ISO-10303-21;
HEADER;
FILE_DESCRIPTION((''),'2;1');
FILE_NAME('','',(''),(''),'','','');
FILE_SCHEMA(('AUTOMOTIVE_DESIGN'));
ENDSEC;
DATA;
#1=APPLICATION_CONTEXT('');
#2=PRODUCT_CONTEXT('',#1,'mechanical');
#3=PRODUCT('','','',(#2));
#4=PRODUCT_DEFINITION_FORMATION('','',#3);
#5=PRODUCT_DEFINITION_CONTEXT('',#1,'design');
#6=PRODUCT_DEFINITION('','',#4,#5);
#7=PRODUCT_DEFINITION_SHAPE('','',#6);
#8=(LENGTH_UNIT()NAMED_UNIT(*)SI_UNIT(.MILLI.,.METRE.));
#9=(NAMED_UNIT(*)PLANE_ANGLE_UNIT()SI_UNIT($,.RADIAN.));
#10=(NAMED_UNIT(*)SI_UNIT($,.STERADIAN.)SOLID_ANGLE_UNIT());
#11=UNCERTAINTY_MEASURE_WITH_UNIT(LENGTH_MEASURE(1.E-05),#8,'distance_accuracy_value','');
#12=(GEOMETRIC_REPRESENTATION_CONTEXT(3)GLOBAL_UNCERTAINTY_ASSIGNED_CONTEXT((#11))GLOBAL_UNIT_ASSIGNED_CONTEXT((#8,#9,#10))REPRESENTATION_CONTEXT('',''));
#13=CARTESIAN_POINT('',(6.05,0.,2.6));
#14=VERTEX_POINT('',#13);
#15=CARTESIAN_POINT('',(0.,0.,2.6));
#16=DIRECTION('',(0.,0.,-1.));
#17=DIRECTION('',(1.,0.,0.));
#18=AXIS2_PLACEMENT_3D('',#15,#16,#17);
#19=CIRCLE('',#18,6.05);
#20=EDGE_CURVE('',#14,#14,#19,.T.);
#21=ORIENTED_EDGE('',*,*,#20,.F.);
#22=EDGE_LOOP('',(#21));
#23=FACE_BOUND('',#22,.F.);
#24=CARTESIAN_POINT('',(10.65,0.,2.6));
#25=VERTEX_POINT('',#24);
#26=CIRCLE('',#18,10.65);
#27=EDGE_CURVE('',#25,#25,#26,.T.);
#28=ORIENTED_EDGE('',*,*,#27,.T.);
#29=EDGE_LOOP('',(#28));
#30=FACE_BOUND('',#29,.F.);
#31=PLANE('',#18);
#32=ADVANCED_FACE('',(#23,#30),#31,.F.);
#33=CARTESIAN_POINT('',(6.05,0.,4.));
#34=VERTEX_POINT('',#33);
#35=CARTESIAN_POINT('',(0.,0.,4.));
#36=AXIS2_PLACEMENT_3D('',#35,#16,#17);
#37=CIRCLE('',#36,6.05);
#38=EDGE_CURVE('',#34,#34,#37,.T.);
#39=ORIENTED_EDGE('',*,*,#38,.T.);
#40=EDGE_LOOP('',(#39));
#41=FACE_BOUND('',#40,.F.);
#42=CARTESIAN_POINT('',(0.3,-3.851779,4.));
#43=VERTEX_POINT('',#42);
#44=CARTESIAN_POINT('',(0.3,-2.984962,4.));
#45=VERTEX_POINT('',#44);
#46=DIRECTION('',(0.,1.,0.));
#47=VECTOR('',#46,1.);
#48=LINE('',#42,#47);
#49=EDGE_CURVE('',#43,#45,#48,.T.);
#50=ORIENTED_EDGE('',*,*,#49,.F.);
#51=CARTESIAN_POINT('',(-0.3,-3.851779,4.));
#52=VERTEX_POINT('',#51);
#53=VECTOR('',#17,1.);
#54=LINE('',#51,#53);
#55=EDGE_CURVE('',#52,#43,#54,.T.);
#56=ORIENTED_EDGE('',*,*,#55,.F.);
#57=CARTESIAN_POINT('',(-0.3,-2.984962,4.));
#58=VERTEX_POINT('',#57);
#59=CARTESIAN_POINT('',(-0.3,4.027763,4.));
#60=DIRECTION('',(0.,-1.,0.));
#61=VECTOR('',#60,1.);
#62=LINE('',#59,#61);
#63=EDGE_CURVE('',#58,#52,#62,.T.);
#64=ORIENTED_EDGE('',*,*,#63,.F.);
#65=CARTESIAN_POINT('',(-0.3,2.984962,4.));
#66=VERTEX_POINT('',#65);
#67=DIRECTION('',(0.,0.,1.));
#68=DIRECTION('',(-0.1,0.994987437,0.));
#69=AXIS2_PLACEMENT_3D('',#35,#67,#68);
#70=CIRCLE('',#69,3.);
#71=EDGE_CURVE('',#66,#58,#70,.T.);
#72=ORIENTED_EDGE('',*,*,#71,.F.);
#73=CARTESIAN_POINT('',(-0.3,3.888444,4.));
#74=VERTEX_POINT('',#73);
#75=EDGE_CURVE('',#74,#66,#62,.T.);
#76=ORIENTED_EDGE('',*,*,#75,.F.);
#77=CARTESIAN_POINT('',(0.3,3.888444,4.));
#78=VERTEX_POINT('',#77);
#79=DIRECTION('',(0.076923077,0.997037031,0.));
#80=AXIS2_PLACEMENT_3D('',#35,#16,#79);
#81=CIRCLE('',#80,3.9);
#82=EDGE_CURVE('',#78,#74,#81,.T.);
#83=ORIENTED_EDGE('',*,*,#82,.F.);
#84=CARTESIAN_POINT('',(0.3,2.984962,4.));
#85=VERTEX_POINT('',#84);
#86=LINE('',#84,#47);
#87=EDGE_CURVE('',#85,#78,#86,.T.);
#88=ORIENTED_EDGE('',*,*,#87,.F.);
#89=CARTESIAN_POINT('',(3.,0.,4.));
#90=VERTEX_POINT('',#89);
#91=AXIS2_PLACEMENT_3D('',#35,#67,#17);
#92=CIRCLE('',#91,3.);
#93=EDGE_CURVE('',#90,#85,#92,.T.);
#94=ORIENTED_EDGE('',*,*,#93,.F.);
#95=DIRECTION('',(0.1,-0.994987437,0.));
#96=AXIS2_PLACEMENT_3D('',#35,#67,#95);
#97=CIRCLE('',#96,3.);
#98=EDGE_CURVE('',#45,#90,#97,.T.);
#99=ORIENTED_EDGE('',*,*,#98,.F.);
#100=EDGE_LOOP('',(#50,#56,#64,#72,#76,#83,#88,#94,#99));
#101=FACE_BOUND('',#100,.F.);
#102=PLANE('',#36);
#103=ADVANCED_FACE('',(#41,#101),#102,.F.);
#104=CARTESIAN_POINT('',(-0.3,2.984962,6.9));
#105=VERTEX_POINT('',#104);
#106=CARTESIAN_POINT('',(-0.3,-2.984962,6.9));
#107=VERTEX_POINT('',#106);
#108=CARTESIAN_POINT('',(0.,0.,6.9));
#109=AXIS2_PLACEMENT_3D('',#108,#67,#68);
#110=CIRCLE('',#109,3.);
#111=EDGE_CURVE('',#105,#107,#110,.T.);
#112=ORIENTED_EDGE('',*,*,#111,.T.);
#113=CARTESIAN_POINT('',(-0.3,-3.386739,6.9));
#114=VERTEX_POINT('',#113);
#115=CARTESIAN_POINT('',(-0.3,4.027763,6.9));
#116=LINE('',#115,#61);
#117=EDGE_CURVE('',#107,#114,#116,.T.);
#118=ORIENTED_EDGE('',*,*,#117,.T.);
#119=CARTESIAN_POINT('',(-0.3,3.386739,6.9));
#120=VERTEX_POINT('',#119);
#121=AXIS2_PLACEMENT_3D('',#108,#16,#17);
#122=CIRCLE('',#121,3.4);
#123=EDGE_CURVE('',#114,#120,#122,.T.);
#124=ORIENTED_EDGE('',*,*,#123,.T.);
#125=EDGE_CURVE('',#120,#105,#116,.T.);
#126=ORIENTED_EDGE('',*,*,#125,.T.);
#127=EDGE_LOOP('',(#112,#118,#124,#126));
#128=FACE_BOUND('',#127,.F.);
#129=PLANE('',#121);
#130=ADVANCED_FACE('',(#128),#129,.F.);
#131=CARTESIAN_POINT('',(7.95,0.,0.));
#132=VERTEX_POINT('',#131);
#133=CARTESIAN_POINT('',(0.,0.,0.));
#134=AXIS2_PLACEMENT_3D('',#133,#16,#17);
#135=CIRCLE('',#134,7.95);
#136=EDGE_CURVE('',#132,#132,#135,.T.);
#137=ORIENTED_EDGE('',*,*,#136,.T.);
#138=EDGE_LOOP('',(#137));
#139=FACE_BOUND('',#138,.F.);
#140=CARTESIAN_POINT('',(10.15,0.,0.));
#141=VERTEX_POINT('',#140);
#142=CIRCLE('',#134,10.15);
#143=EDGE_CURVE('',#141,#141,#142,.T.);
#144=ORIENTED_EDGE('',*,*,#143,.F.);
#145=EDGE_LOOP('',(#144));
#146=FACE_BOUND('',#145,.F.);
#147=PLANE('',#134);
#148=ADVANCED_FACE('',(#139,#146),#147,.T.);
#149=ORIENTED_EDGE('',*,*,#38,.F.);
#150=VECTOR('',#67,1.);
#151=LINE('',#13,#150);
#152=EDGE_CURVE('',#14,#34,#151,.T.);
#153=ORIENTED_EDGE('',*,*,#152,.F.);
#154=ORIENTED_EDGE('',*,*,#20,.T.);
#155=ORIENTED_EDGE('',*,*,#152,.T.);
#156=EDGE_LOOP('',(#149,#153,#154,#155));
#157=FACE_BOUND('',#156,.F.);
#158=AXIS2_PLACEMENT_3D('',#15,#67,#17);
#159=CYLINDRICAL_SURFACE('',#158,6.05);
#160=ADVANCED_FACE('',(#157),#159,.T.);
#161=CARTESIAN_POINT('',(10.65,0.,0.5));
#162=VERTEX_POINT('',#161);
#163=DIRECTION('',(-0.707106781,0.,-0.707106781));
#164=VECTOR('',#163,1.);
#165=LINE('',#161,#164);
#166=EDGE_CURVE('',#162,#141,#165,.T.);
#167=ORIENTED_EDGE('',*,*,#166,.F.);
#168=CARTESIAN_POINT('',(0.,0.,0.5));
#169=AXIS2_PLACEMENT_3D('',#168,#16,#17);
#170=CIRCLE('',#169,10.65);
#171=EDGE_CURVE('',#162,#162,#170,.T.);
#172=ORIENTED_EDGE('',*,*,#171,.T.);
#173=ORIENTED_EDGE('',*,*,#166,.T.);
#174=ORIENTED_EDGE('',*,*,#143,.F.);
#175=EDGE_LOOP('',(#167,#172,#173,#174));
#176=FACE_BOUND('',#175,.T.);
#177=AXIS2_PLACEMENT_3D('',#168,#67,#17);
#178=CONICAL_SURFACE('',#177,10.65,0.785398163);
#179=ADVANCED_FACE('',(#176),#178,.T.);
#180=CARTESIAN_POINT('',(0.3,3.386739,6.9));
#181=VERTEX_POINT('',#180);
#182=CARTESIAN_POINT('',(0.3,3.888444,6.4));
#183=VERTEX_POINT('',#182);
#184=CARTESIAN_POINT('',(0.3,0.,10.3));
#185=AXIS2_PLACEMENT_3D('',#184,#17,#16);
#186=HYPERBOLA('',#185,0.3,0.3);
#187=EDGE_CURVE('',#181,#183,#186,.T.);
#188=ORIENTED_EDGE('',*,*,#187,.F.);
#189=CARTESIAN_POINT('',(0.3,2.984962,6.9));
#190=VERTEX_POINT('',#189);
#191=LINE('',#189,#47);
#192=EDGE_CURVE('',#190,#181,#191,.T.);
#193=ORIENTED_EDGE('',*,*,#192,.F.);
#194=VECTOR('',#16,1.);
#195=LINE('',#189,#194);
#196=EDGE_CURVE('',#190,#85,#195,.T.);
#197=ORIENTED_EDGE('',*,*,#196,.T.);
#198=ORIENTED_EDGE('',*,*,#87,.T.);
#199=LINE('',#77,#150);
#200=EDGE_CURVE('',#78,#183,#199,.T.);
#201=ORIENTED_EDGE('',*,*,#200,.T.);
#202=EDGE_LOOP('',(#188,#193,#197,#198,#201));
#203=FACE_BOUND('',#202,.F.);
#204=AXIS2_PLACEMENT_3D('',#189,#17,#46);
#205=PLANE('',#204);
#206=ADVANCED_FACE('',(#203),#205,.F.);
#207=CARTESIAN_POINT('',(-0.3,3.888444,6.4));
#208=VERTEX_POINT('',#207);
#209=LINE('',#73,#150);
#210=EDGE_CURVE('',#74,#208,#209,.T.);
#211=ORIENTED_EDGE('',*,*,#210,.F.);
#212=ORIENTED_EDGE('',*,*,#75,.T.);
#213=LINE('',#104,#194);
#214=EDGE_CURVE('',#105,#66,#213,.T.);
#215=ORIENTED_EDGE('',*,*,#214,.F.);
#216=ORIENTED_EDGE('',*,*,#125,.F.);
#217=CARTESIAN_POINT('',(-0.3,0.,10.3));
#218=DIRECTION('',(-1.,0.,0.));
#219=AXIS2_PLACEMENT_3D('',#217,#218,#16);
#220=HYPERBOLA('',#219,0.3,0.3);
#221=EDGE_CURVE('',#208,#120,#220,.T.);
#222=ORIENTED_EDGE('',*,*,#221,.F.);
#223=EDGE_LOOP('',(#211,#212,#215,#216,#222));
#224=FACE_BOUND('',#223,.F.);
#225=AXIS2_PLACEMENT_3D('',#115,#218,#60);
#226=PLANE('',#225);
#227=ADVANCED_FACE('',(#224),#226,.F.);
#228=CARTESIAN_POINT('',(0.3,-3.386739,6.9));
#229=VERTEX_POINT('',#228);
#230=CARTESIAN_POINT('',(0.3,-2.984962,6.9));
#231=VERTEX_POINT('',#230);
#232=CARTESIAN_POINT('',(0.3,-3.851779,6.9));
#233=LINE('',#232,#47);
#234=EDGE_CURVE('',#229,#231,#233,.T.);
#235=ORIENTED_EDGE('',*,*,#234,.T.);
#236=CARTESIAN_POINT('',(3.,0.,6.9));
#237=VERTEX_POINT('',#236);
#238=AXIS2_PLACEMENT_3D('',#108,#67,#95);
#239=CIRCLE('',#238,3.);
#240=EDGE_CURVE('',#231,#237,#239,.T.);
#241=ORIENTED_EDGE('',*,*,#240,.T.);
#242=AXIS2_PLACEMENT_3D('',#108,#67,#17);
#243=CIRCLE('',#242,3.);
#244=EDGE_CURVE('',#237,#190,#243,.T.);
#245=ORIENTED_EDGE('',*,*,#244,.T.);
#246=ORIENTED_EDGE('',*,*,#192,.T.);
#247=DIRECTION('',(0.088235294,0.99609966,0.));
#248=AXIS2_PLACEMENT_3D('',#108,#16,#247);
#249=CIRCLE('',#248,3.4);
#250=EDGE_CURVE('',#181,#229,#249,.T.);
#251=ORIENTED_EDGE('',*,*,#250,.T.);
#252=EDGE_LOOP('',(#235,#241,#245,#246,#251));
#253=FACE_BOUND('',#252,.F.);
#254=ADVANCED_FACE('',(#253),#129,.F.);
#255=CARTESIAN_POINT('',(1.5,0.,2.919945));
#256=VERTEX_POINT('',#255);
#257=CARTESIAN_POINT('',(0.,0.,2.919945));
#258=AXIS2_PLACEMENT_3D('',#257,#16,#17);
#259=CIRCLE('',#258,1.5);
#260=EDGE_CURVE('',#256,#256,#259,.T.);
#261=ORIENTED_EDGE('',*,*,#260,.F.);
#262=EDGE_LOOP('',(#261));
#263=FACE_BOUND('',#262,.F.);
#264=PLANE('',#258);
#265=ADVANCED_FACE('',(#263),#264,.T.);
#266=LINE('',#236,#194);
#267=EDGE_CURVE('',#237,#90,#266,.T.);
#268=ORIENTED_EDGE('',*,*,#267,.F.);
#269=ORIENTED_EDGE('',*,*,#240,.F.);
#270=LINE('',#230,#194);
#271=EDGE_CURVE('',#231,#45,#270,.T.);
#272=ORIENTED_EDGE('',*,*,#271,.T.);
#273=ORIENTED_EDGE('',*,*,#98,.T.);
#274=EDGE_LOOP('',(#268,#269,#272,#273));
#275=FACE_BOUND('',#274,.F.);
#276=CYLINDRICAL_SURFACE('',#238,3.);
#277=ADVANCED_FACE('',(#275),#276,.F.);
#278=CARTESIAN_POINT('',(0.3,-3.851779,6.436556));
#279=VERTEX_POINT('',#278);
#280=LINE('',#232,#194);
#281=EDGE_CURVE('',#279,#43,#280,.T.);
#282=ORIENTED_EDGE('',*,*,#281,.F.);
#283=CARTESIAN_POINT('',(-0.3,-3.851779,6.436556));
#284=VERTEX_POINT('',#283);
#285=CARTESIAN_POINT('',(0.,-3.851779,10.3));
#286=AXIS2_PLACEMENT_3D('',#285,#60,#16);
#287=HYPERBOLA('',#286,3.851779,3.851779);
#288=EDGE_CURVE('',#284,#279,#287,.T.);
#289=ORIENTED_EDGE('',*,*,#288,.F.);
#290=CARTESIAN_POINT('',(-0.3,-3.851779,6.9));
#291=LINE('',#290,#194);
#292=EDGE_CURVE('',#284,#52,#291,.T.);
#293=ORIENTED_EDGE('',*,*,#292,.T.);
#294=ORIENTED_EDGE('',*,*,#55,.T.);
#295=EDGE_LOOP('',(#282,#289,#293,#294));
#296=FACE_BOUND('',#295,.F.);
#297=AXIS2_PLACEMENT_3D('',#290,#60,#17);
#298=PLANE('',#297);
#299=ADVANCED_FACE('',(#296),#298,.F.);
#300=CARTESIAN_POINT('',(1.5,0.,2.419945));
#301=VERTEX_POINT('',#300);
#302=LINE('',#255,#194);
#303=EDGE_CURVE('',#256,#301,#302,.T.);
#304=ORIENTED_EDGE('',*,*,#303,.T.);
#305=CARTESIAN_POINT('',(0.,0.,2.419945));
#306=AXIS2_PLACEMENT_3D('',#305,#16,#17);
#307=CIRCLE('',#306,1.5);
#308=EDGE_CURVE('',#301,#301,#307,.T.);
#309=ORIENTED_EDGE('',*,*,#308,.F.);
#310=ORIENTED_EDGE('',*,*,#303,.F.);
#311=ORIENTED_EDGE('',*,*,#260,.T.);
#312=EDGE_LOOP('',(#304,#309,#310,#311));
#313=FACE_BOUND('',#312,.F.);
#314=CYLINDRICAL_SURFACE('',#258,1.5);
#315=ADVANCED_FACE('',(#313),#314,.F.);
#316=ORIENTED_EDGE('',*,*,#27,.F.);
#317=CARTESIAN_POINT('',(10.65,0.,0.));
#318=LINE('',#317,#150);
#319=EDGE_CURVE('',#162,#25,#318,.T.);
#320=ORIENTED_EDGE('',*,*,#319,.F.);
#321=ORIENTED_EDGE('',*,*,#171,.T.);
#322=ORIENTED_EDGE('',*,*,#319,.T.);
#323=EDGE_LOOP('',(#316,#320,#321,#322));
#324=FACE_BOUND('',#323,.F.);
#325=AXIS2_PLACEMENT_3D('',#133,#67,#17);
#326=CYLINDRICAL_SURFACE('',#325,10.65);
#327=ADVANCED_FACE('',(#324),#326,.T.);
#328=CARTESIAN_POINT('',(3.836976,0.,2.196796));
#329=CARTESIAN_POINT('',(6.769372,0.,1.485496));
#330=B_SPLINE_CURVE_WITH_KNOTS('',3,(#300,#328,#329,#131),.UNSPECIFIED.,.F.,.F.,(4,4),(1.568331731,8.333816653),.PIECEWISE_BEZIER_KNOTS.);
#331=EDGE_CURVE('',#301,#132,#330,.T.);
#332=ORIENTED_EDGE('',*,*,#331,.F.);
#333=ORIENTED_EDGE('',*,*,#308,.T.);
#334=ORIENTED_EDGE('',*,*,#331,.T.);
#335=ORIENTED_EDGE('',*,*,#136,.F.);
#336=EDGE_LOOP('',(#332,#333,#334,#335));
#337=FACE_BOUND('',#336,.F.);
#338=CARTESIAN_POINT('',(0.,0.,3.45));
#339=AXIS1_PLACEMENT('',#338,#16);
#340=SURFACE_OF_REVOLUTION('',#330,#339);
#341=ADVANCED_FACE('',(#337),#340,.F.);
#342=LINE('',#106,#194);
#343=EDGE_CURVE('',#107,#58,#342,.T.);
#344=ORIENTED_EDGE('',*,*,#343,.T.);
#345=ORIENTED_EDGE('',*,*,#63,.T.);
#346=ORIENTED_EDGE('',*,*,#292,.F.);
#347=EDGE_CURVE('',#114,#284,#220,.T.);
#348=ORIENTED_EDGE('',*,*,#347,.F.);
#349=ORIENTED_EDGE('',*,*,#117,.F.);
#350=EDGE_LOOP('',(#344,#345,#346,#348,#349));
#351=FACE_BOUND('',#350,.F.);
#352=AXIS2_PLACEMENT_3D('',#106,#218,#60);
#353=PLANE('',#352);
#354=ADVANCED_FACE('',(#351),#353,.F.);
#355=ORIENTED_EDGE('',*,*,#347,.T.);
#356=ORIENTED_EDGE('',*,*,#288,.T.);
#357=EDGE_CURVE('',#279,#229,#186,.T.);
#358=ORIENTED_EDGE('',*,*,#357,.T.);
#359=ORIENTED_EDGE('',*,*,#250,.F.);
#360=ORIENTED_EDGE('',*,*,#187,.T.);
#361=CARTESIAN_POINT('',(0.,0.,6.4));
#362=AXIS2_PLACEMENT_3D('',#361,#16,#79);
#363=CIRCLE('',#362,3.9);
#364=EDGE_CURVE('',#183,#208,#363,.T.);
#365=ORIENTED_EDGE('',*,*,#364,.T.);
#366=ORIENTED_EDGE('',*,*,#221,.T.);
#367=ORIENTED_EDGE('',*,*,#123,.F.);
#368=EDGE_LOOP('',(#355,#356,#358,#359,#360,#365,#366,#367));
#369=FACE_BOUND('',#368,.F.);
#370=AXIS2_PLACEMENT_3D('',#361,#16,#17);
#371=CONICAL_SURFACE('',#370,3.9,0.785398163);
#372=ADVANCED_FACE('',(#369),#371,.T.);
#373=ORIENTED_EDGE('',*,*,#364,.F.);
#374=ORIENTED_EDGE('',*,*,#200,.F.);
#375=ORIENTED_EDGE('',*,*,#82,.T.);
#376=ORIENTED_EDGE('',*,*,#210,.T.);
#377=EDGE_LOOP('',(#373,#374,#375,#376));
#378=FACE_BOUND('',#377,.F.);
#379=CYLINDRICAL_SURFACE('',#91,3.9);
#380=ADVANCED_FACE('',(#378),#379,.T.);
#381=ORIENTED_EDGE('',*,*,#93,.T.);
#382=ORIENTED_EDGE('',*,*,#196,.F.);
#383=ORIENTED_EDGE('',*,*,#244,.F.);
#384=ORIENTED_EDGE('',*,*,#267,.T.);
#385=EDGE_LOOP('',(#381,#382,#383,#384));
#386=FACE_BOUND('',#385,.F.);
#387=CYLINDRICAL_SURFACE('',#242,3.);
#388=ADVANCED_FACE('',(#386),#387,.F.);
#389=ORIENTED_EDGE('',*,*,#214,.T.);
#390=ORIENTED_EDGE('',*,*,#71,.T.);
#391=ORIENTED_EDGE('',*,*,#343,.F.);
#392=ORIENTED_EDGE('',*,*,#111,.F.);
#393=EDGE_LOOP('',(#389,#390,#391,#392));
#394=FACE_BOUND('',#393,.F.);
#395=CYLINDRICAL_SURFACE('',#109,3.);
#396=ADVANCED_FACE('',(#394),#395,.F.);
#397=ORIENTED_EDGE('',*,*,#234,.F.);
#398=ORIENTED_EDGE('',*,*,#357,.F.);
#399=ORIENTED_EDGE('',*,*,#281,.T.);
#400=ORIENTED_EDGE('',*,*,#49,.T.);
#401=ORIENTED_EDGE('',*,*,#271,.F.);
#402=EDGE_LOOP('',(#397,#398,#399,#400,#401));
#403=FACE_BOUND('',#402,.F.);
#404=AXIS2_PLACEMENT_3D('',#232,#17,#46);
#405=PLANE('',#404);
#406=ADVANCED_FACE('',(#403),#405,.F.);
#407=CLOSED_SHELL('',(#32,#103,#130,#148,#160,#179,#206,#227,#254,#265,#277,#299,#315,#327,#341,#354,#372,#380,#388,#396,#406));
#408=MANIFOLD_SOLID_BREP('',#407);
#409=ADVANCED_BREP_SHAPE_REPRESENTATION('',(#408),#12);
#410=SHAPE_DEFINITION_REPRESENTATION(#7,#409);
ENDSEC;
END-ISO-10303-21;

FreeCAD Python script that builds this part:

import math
import FreeCAD as App
import Part
import Sketcher
from FreeCAD import Vector


def edges_at(feature, points):
    """Names of the edges that pass closest to the given points."""
    edges = feature.Shape.Edges
    near = lambda p: min(range(len(edges)), key=lambda i: edges[i].distToShape(Part.Vertex(*p))[0])
    return sorted({f"Edge{near(p) + 1}" for p in points})

doc = App.newDocument("Part")
body = doc.addObject("PartDesign::Body", "Body")

sketch1 = doc.addObject("Sketcher::SketchObject", "Sketch")
body.addObject(sketch1)
sketch1.AttachmentSupport = (doc.XZ_Plane, [""])
sketch1.MapMode = "FlatFace"
sketch1.addGeometry([
    Part.BSplineCurve([Vector(1.5, 2.419945, 0), Vector(3.836976, 2.196796, 0), Vector(6.769372, 1.485496, 0), Vector(7.95, 0, 0)], [4, 4], [1.568331731, 8.333816653], False, 3, [1, 1, 1, 1], False),
    Part.LineSegment(Vector(7.95, 0, 0), Vector(10.65, 0, 0)),
    Part.LineSegment(Vector(10.65, 0, 0), Vector(10.65, 2.6, 0)),
    Part.LineSegment(Vector(10.65, 2.6, 0), Vector(6.05, 2.6, 0)),
    Part.LineSegment(Vector(6.05, 2.6, 0), Vector(6.05, 4, 0)),
    Part.LineSegment(Vector(6.05, 4, 0), Vector(3.9, 4, 0)),
    Part.LineSegment(Vector(3.9, 4, 0), Vector(3.9, 6.9, 0)),
    Part.LineSegment(Vector(3.9, 6.9, 0), Vector(0, 6.9, 0)),
    Part.LineSegment(Vector(0, 6.9, 0), Vector(0, 2.919945, 0)),
    Part.LineSegment(Vector(0, 2.919945, 0), Vector(1.5, 2.919945, 0)),
    Part.LineSegment(Vector(1.5, 2.919945, 0), Vector(1.5, 2.419945, 0)),
], False)
sketch1.addConstraint([
    Sketcher.Constraint("Block", 0),
    Sketcher.Constraint("Coincident", 0, 2, 1, 1),
    Sketcher.Constraint("Coincident", 1, 2, 2, 1),
    Sketcher.Constraint("Coincident", 2, 2, 3, 1),
    Sketcher.Constraint("Coincident", 3, 2, 4, 1),
    Sketcher.Constraint("Coincident", 4, 2, 5, 1),
    Sketcher.Constraint("Coincident", 5, 2, 6, 1),
    Sketcher.Constraint("Coincident", 6, 2, 7, 1),
    Sketcher.Constraint("Coincident", 7, 2, 8, 1),
    Sketcher.Constraint("Coincident", 8, 2, 9, 1),
    Sketcher.Constraint("Coincident", 9, 2, 10, 1),
    Sketcher.Constraint("Coincident", 10, 2, 0, 1),
    Sketcher.Constraint("Horizontal", 1),
    Sketcher.Constraint("Vertical", 2),
    Sketcher.Constraint("Horizontal", 3),
    Sketcher.Constraint("Vertical", 4),
    Sketcher.Constraint("Horizontal", 5),
    Sketcher.Constraint("Vertical", 6),
    Sketcher.Constraint("Horizontal", 7),
    Sketcher.Constraint("Vertical", 8),
    Sketcher.Constraint("Horizontal", 9),
    Sketcher.Constraint("Vertical", 10),
    Sketcher.Constraint("PointOnObject", 7, 2, -2),
    Sketcher.Constraint("DistanceX", 1, 1, 1, 2, 2.7),
    Sketcher.Constraint("DistanceX", 3, 2, 3, 1, 4.6),
    Sketcher.Constraint("DistanceX", 7, 2, 7, 1, 3.9),
    Sketcher.Constraint("DistanceY", 2, 1, 2, 2, 2.6),
    Sketcher.Constraint("DistanceY", 4, 1, 4, 2, 1.4),
    Sketcher.Constraint("DistanceY", 6, 1, 6, 2, 2.9),
    Sketcher.Constraint("DistanceY", 10, 2, 10, 1, 0.5),
])
revolution = doc.addObject("PartDesign::Revolution", "Revolution")
body.addObject(revolution)
revolution.Profile = sketch1
revolution.ReferenceAxis = (sketch1, ["V_Axis"])
revolution.Angle = 360
doc.recompute()

chamfer = doc.addObject("PartDesign::Chamfer", "Chamfer")
body.addObject(chamfer)
chamfer.Base = (revolution, edges_at(revolution, [(-3.9, 0, 6.9)]))
chamfer.Size = 0.5
doc.recompute()

chamfer2 = doc.addObject("PartDesign::Chamfer", "Chamfer001")
body.addObject(chamfer2)
chamfer2.Base = (chamfer, edges_at(chamfer, [(-10.65, 0, 0)]))
chamfer2.Size = 0.5

sketch2 = doc.addObject("Sketcher::SketchObject", "Sketch001")
body.addObject(sketch2)
sketch2.AttachmentSupport = (doc.XY_Plane, [""])
sketch2.MapMode = "FlatFace"
sketch2.AttachmentOffset = App.Placement(Vector(0, 0, 6.9), App.Rotation())
sketch2.addGeometry([
    Part.ArcOfCircle(Part.Circle(Vector(0, 0, 0), Vector(0, 0, 1), 3), math.radians(-84), math.radians(0)),
    Part.ArcOfCircle(Part.Circle(Vector(0, 0, 0), Vector(0, 0, 1), 3), math.radians(0), math.radians(84)),
    Part.LineSegment(Vector(0.3, 3, 0), Vector(0.3, 4, 0)),
    Part.LineSegment(Vector(0.3, 4, 0), Vector(-0.3, 4, 0)),
    Part.LineSegment(Vector(-0.3, 4, 0), Vector(-0.3, 3, 0)),
    Part.ArcOfCircle(Part.Circle(Vector(0, 0, 0), Vector(0, 0, 1), 3), math.radians(96), math.radians(264)),
    Part.LineSegment(Vector(-0.3, -3, 0), Vector(-0.3, -3.9, 0)),
    Part.LineSegment(Vector(-0.3, -3.9, 0), Vector(0.3, -3.9, 0)),
    Part.LineSegment(Vector(0.3, -3.9, 0), Vector(0.3, -3, 0)),
], False)
sketch2.addConstraint([
    Sketcher.Constraint("Tangent", 0, 2, 1, 1),
    Sketcher.Constraint("Coincident", 1, 2, 2, 1),
    Sketcher.Constraint("Coincident", 2, 2, 3, 1),
    Sketcher.Constraint("Coincident", 3, 2, 4, 1),
    Sketcher.Constraint("Coincident", 4, 2, 5, 1),
    Sketcher.Constraint("Coincident", 5, 2, 6, 1),
    Sketcher.Constraint("Coincident", 6, 2, 7, 1),
    Sketcher.Constraint("Coincident", 7, 2, 8, 1),
    Sketcher.Constraint("Coincident", 8, 2, 0, 1),
    Sketcher.Constraint("Vertical", 2),
    Sketcher.Constraint("Horizontal", 3),
    Sketcher.Constraint("Vertical", 4),
    Sketcher.Constraint("Vertical", 6),
    Sketcher.Constraint("Horizontal", 7),
    Sketcher.Constraint("Vertical", 8),
    Sketcher.Constraint("Coincident", 0, 3, -1, 1),
    Sketcher.Constraint("Coincident", 5, 3, -1, 1),
    Sketcher.Constraint("Equal", 0, 1),
    Sketcher.Constraint("Equal", 1, 5),
    Sketcher.Constraint("PointOnObject", 0, 2, -1),
    Sketcher.Constraint("Horizontal", 1, 2, 4, 2),
    Sketcher.Constraint("Horizontal", 5, 2, 8, 2),
    Sketcher.Constraint("Vertical", 4, 2, 5, 2),
    Sketcher.Constraint("Radius", 0, 3.0),
    Sketcher.Constraint("DistanceX", 3, 2, 3, 1, 0.6),
    Sketcher.Constraint("DistanceY", 2, 1, 2, 2, 1.042801),
    Sketcher.Constraint("DistanceY", 6, 2, 6, 1, 0.866817),
])
pocket1 = doc.addObject("PartDesign::Pocket", "Pocket")
body.addObject(pocket1)
pocket1.Profile = sketch2
pocket1.Length = 2.9

doc.recompute()
